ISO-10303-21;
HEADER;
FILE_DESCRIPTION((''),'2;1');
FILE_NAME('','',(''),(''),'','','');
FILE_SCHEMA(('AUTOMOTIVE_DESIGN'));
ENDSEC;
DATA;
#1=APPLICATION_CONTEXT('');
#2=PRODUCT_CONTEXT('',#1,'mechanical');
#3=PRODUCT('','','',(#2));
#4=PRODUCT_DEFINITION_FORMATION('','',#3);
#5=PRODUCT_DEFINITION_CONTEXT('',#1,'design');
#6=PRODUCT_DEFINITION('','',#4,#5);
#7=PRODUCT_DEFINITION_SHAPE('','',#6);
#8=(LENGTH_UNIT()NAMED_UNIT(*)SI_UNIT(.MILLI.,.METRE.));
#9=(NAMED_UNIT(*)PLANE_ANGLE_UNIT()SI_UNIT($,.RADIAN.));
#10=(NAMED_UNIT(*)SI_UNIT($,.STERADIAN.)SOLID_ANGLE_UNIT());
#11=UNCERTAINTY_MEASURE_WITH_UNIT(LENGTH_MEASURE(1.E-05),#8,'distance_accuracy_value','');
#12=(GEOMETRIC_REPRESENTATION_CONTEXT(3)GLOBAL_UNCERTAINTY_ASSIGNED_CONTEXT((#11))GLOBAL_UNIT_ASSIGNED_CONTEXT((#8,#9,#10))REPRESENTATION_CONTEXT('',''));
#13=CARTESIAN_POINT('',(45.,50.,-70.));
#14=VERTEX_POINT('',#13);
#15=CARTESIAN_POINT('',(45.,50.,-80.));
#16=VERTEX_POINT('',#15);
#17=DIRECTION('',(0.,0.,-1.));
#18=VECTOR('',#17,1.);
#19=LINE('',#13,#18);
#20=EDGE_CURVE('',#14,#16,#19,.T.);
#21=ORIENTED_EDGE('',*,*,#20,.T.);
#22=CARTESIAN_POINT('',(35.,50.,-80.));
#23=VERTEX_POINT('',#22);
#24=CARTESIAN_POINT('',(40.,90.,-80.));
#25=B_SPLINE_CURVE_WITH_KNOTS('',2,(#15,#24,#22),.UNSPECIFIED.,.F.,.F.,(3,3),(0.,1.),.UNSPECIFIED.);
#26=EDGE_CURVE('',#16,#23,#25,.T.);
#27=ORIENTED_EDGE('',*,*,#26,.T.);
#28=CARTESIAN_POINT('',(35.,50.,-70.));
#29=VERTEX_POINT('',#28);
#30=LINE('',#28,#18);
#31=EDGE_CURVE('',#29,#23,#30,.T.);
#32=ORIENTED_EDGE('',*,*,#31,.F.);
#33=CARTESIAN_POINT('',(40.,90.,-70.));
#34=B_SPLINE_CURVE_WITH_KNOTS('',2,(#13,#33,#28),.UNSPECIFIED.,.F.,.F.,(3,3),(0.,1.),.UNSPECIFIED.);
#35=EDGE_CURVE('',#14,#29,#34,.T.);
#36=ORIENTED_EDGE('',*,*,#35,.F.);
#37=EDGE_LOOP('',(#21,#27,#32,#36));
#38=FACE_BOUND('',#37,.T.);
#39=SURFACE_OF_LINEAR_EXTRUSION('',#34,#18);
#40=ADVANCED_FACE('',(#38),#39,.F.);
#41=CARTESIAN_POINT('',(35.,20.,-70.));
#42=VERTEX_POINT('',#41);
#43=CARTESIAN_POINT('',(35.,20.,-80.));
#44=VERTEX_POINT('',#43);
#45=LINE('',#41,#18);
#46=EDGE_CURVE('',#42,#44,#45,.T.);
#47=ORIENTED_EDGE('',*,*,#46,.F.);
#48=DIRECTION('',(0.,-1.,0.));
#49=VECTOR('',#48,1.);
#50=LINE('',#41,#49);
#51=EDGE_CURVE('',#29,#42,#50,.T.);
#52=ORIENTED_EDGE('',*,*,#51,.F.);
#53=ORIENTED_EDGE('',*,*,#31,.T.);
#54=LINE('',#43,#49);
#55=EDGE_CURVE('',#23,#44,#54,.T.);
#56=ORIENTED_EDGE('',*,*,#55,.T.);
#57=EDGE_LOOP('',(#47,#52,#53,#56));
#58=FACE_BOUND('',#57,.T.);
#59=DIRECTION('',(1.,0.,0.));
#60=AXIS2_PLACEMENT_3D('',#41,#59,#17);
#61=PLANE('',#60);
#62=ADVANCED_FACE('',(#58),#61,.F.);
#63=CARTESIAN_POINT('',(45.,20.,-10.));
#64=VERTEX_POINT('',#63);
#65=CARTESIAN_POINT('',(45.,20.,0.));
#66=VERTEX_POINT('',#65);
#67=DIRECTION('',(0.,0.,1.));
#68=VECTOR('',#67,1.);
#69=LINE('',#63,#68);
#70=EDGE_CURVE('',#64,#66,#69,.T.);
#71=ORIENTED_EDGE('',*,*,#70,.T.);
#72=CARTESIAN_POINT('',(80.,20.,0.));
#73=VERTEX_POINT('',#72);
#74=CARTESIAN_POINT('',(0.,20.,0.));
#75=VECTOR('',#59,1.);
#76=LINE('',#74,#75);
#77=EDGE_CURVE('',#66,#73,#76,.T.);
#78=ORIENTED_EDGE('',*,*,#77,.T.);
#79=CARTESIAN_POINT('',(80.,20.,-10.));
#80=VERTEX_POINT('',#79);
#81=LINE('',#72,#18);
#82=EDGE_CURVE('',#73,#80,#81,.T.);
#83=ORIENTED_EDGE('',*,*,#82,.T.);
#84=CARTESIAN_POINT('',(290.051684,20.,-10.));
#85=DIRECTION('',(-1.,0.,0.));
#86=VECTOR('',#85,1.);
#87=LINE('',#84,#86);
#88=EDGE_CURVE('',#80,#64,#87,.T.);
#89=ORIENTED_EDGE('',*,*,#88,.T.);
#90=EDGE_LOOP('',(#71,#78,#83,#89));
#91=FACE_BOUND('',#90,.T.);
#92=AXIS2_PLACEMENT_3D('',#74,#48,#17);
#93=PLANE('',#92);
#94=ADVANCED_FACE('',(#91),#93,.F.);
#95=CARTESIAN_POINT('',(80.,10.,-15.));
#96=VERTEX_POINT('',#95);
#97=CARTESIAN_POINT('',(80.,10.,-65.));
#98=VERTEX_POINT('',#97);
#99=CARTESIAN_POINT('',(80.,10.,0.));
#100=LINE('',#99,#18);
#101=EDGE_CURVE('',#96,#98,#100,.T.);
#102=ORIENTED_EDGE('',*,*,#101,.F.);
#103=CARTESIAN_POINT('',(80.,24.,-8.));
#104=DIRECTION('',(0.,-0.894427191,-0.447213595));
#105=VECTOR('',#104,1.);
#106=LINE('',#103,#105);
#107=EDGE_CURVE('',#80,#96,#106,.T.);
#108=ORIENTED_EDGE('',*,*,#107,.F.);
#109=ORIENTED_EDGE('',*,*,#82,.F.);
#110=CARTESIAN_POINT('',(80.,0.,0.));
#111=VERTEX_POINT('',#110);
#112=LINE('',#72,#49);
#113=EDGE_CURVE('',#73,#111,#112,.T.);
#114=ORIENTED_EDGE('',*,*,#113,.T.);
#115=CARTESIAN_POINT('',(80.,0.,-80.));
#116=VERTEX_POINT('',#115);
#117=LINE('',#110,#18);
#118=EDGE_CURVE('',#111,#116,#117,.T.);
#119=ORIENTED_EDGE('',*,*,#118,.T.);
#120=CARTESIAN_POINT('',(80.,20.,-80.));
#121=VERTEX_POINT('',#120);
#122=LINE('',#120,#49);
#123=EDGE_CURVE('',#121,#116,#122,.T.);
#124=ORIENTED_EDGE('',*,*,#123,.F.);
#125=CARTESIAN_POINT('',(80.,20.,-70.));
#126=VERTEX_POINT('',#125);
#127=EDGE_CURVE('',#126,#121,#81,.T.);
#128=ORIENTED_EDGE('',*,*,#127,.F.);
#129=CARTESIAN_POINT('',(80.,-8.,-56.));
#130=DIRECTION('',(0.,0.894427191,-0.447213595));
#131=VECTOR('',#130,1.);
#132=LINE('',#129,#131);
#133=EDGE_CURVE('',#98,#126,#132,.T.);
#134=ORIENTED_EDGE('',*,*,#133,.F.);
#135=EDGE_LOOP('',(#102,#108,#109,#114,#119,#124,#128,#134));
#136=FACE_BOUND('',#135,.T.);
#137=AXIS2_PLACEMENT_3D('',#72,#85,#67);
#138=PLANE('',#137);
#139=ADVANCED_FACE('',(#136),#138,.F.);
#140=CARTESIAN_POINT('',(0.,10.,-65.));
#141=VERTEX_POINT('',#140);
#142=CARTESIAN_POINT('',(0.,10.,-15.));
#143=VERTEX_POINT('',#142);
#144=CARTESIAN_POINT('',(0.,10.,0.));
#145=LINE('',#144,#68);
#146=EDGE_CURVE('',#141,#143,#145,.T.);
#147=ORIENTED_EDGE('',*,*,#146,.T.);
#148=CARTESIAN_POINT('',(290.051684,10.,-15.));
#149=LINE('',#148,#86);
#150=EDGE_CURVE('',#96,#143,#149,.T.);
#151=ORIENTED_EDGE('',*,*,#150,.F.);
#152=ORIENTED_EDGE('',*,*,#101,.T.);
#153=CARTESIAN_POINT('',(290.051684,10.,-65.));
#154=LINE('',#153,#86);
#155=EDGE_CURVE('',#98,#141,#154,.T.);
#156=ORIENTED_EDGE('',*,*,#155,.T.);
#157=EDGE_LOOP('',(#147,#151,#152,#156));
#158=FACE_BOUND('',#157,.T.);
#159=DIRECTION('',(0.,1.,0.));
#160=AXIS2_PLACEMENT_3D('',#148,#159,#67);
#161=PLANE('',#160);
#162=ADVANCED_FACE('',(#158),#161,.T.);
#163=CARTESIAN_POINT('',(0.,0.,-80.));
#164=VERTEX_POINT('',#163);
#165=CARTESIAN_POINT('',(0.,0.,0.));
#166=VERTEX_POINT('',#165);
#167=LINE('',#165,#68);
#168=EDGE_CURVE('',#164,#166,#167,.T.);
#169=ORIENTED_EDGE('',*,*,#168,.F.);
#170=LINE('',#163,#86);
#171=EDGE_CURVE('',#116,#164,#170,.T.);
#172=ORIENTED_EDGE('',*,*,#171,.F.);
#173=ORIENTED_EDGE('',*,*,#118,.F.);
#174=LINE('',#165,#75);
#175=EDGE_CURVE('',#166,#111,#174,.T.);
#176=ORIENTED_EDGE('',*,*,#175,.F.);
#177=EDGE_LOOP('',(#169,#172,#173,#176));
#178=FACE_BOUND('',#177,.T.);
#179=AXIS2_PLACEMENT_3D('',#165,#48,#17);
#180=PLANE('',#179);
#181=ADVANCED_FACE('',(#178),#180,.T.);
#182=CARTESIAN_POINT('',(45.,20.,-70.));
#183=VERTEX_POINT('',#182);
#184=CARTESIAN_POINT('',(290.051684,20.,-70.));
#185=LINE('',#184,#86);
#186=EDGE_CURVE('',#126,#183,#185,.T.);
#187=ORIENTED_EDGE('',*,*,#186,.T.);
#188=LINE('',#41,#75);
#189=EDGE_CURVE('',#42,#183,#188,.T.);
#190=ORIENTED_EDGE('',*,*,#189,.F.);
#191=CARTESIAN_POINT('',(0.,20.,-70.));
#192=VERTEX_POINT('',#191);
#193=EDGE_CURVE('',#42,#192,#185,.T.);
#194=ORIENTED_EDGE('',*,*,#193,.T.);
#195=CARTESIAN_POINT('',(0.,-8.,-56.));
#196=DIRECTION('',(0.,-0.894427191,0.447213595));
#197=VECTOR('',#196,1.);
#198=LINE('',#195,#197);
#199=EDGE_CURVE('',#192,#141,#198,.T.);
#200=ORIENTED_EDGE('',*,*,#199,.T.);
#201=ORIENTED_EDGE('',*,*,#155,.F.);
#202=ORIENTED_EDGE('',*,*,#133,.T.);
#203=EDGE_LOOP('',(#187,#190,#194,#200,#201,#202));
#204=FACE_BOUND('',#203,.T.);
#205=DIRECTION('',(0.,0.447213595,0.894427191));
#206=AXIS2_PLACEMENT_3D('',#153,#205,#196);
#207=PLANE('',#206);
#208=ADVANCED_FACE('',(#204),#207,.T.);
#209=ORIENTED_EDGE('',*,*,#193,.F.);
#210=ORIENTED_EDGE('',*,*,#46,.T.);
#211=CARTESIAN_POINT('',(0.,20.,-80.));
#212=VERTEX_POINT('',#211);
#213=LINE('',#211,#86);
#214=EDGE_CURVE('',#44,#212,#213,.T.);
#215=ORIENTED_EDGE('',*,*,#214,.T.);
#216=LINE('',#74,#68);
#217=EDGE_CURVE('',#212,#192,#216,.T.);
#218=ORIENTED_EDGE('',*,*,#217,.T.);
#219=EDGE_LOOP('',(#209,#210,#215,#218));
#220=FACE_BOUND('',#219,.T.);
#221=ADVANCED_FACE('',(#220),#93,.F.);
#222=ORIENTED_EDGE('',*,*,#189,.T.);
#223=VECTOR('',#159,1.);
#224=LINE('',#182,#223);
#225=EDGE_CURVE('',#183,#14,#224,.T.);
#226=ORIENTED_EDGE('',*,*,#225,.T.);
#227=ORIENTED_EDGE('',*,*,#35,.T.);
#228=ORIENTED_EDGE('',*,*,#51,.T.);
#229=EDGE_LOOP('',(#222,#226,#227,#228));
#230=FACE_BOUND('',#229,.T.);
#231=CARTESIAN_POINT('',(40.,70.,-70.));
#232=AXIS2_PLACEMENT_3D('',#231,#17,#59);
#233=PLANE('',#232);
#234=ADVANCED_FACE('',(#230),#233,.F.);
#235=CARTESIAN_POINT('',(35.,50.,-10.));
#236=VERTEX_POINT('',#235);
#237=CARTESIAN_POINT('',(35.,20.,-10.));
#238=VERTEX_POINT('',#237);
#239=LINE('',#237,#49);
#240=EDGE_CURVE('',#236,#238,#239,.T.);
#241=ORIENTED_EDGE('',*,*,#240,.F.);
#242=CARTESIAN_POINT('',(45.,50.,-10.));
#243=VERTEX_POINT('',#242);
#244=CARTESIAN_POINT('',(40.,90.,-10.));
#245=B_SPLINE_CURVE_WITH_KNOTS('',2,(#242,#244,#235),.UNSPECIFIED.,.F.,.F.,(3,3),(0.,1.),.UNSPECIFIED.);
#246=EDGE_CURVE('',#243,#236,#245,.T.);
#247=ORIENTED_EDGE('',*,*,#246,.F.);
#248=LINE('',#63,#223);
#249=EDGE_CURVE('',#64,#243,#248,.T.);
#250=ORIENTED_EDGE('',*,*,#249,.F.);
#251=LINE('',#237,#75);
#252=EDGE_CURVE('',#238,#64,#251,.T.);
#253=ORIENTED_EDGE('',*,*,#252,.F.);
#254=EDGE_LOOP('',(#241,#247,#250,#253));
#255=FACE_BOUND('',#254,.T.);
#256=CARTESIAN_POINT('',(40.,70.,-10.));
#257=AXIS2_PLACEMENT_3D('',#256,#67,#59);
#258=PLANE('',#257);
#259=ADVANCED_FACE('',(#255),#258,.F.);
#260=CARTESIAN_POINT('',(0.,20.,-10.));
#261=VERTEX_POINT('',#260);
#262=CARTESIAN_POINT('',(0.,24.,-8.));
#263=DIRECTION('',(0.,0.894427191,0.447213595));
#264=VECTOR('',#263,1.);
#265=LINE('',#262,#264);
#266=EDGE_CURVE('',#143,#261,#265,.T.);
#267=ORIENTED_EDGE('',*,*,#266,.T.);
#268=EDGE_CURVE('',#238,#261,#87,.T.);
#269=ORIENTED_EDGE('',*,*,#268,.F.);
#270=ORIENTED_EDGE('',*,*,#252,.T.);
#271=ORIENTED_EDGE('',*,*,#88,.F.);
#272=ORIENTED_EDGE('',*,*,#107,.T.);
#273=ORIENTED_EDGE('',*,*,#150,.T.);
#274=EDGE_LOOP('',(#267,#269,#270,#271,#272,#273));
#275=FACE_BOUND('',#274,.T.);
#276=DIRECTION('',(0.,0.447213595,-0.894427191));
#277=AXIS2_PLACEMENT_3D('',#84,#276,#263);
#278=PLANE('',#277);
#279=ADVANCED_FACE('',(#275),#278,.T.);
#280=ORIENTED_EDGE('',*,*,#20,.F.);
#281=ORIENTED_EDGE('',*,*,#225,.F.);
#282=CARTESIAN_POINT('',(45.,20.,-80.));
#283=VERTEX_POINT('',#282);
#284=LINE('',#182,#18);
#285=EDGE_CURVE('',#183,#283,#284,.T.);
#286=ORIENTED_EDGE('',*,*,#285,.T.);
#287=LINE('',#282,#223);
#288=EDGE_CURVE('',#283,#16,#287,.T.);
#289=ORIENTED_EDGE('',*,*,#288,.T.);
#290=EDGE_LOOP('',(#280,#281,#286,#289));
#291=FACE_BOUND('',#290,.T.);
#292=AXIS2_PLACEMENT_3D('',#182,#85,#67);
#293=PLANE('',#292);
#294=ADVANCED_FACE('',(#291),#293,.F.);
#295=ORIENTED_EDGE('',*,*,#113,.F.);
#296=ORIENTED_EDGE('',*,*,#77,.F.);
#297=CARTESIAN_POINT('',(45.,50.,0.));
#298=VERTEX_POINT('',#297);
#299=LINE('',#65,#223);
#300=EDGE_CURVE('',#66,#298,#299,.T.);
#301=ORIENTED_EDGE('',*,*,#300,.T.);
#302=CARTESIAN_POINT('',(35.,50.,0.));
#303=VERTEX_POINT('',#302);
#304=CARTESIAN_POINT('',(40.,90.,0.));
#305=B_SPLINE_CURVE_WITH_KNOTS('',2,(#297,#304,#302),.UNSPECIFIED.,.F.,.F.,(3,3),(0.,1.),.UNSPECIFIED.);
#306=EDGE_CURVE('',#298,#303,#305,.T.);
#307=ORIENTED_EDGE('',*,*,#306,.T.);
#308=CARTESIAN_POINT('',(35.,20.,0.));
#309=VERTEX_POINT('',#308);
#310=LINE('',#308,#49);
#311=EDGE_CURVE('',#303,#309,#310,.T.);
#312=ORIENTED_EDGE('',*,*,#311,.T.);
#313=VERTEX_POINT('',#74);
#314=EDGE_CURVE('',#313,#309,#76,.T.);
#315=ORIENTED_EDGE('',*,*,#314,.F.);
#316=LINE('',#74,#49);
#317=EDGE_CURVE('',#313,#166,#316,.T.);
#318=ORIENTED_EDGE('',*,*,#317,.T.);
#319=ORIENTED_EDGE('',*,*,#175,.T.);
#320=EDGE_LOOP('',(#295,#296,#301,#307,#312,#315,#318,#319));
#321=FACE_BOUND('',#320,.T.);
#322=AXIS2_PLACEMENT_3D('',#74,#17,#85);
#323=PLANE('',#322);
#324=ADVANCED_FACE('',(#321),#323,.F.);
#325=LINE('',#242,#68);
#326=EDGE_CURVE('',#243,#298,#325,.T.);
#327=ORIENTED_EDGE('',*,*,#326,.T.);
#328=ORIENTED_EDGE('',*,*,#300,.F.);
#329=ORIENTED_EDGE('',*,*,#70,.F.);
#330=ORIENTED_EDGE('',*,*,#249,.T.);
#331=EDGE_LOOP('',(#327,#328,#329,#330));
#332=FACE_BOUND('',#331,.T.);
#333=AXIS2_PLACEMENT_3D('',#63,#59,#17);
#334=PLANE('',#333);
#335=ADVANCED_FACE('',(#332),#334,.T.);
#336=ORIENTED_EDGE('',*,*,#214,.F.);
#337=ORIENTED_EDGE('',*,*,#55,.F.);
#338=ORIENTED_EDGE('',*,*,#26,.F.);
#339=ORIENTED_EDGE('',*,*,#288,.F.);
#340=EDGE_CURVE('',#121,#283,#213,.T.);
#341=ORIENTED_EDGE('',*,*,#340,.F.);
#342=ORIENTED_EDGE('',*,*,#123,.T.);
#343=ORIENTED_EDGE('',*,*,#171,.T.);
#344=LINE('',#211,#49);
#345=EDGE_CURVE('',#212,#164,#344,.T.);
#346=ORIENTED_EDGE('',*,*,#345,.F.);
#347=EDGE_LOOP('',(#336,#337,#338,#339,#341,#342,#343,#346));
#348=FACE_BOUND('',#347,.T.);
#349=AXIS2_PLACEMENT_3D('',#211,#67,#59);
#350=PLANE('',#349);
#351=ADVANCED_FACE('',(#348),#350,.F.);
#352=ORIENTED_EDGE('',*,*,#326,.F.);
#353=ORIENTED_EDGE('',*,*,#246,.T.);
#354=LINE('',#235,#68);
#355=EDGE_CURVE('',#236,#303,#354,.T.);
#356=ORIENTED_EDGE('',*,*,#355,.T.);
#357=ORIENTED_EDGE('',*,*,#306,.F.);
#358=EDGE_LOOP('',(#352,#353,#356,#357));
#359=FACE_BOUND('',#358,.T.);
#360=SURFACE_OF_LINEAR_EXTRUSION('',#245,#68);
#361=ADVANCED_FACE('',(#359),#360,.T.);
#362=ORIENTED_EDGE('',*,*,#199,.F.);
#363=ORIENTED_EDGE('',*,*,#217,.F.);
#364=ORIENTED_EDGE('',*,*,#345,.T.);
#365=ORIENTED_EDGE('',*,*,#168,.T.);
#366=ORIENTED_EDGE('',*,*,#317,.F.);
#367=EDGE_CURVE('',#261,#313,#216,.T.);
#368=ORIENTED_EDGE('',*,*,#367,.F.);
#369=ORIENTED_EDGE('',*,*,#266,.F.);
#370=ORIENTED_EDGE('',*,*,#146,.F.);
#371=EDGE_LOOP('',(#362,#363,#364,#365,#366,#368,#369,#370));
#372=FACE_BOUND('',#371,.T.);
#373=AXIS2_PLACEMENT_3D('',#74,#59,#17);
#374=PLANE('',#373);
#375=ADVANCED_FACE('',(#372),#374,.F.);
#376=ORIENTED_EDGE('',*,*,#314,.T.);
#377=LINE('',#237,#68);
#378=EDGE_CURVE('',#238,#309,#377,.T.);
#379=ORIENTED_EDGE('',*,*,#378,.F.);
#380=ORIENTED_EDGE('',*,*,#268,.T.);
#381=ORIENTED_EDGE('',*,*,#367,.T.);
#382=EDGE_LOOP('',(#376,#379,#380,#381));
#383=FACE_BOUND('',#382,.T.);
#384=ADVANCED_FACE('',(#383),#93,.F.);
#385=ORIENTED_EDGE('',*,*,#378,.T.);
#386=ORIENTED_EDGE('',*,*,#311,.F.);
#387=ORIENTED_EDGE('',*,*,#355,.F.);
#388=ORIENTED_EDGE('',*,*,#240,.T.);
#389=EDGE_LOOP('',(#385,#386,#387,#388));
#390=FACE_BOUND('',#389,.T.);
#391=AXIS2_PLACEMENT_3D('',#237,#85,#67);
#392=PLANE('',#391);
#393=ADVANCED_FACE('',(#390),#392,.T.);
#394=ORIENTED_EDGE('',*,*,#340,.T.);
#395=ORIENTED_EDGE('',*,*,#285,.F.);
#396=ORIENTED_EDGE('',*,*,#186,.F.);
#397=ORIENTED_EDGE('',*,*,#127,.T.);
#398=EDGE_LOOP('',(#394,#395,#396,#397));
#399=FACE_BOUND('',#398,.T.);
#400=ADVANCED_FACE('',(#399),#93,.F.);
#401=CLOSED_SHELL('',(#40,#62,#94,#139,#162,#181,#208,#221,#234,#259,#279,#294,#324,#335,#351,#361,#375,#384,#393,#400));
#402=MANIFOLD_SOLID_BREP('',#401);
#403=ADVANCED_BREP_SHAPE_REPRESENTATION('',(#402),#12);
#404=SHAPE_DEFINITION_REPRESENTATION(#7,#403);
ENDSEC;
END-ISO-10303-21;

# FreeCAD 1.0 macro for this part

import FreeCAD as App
import Part
import Sketcher


def add_polygon(sketch, points):
    """Adds a closed chain of lines whose ends are joined by coincident constraints."""
    first, n = sketch.GeometryCount, len(points)
    for a, b in zip(points, points[1:] + points[:1]):
        sketch.addGeometry(Part.LineSegment(App.Vector(*a, 0), App.Vector(*b, 0)), False)
    for i in range(n):
        sketch.addConstraint(Sketcher.Constraint("Coincident", first + i, 2, first + (i + 1) % n, 1))

doc = App.newDocument("Part")
body = doc.addObject("PartDesign::Body", "Body")

# Sketch on XZ plane
sketch1 = body.newObject("Sketcher::SketchObject", "Sketch")
sketch1.AttachmentSupport = (doc.getObject("XZ_Plane"), [""])
sketch1.MapMode = "FlatFace"
add_polygon(sketch1, [(0, -80), (0, 0), (80, 0), (80, -80)])  # lines 0-3
sketch1.addConstraint(Sketcher.Constraint("Vertical", 0))
sketch1.addConstraint(Sketcher.Constraint("Horizontal", 1))
sketch1.addConstraint(Sketcher.Constraint("Vertical", 2))
sketch1.addConstraint(Sketcher.Constraint("Horizontal", 3))
sketch1.addConstraint(Sketcher.Constraint("Coincident", 0, 2, -1, 1))
sketch1.addConstraint(Sketcher.Constraint("Equal", 3, 0))
sketch1.addConstraint(Sketcher.Constraint("DistanceX", 1, 1, 1, 2, 80.0))
pad1 = body.newObject("PartDesign::Pad", "Pad")
pad1.Profile = sketch1
pad1.Length = 20
pad1.Reversed = True

# Sketch on XY plane
sketch2 = body.newObject("Sketcher::SketchObject", "Sketch001")
sketch2.AttachmentSupport = (doc.getObject("XY_Plane"), [""])
sketch2.MapMode = "FlatFace"
sketch2.addGeometry(Part.LineSegment(App.Vector(35, 50, 0), App.Vector(35, 20, 0)), False)
sketch2.addGeometry(Part.LineSegment(App.Vector(35, 20, 0), App.Vector(45, 20, 0)), False)
sketch2.addGeometry(Part.LineSegment(App.Vector(45, 20, 0), App.Vector(45, 50, 0)), False)
sketch2.addGeometry(Part.BSplineCurve([App.Vector(35, 50, 0), App.Vector(40, 90, 0), App.Vector(45, 50, 0)], [3, 3], [0, 1], False, 2, [1, 1, 1], False), False)
sketch2.addConstraint(Sketcher.Constraint("Block", 3))
sketch2.addConstraint(Sketcher.Constraint("Coincident", 0, 2, 1, 1))
sketch2.addConstraint(Sketcher.Constraint("Coincident", 1, 2, 2, 1))
sketch2.addConstraint(Sketcher.Constraint("Coincident", 2, 2, 3, 2))
sketch2.addConstraint(Sketcher.Constraint("Coincident", 3, 1, 0, 1))
sketch2.addConstraint(Sketcher.Constraint("Vertical", 0))
sketch2.addConstraint(Sketcher.Constraint("Horizontal", 1))
sketch2.addConstraint(Sketcher.Constraint("Vertical", 2))
sketch2.addConstraint(Sketcher.Constraint("DistanceY", 0, 2, 0, 1, 30.0))
pad2 = body.newObject("PartDesign::Pad", "Pad001")
pad2.Profile = sketch2
pad2.Length = 10
pad2.Reversed = True
doc.recompute()

datumplane = body.newObject("PartDesign::Plane", "DatumPlane")
datumplane.AttachmentSupport = (doc.getObject("XY_Plane"), [""])
datumplane.MapMode = "FlatFace"
datumplane.AttachmentOffset = App.Placement(App.Vector(0, 0, -40), App.Rotation())
mirrored = body.newObject("PartDesign::Mirrored", "Mirrored")
mirrored.Originals = [pad2]
mirrored.MirrorPlane = (datumplane, [""])
body.Tip = mirrored

# Sketch on YZ plane
sketch3 = body.newObject("Sketcher::SketchObject", "Sketch002")
sketch3.AttachmentSupport = (doc.getObject("YZ_Plane"), [""])
sketch3.MapMode = "FlatFace"
sketch3.AttachmentOffset = App.Placement(App.Vector(0, 0, 80), App.Rotation())
add_polygon(sketch3, [(20, -70), (20, -10), (10, -15), (10, -65)])  # lines 0-3
sketch3.addConstraint(Sketcher.Constraint("Vertical", 0))
sketch3.addConstraint(Sketcher.Constraint("Vertical", 2))
sketch3.addConstraint(Sketcher.Constraint("Equal", 1, 3))
sketch3.addConstraint(Sketcher.Constraint("DistanceY", 0, 1, 0, 2, 60.0))
sketch3.addConstraint(Sketcher.Constraint("DistanceY", 2, 2, 2, 1, 50.0))
sketch3.addConstraint(Sketcher.Constraint("DistanceX", -1, 1, 0, 2, 20.0))
sketch3.addConstraint(Sketcher.Constraint("DistanceY", 0, 2, -1, 1, 10.0))
sketch3.addConstraint(Sketcher.Constraint("DistanceX", -1, 1, 1, 2, 10.0))
pocket1 = body.newObject("PartDesign::Pocket", "Pocket")
pocket1.Profile = sketch3
pocket1.Type = "ThroughAll"
pocket1.Midplane = True

doc.recompute()
